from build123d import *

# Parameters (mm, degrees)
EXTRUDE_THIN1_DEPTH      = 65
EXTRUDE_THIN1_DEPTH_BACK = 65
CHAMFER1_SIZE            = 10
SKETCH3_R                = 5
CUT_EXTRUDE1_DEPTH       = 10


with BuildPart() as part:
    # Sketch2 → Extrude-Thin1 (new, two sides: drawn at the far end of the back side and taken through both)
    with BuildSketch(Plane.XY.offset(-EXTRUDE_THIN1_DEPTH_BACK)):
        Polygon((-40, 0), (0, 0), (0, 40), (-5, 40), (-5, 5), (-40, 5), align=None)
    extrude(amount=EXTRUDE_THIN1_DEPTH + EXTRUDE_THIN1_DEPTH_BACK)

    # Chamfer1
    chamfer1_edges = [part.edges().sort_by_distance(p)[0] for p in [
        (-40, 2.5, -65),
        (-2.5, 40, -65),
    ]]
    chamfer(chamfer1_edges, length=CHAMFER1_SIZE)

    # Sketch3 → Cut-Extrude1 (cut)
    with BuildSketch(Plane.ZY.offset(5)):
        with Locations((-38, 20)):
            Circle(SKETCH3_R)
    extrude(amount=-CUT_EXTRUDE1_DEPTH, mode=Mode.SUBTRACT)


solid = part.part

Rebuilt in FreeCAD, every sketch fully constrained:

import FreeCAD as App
import Part
import Sketcher
from FreeCAD import Vector


def edges_at(feature, points):
    """Names of the edges that pass closest to the given points."""
    edges = feature.Shape.Edges
    near = lambda p: min(range(len(edges)), key=lambda i: edges[i].distToShape(Part.Vertex(*p))[0])
    return sorted({f"Edge{near(p) + 1}" for p in points})


def add_polygon(sketch, points):
    """Adds a closed chain of lines whose ends are joined by coincident constraints."""
    first, n = sketch.GeometryCount, len(points)
    for a, b in zip(points, points[1:] + points[:1]):
        sketch.addGeometry(Part.LineSegment(App.Vector(*a, 0), App.Vector(*b, 0)), False)
    for i in range(n):
        sketch.addConstraint(Sketcher.Constraint("Coincident", first + i, 2, first + (i + 1) % n, 1))

doc = App.newDocument("Part")
body = doc.addObject("PartDesign::Body", "Body")

# Sketch on XY plane
sketch1 = body.newObject("Sketcher::SketchObject", "Sketch")
sketch1.AttachmentSupport = (doc.getObject("XY_Plane"), [""])
sketch1.MapMode = "FlatFace"
add_polygon(sketch1, [(-40, 0), (0, 0), (0, 40), (-5, 40), (-5, 5), (-40, 5)])  # lines 0-5
sketch1.addConstraint(Sketcher.Constraint("Horizontal", 0))
sketch1.addConstraint(Sketcher.Constraint("Vertical", 1))
sketch1.addConstraint(Sketcher.Constraint("Horizontal", 2))
sketch1.addConstraint(Sketcher.Constraint("Vertical", 3))
sketch1.addConstraint(Sketcher.Constraint("Horizontal", 4))
sketch1.addConstraint(Sketcher.Constraint("Vertical", 5))
sketch1.addConstraint(Sketcher.Constraint("Coincident", 0, 2, -1, 1))
sketch1.addConstraint(Sketcher.Constraint("Equal", 0, 1))
sketch1.addConstraint(Sketcher.Constraint("Equal", 4, 3))
sketch1.addConstraint(Sketcher.Constraint("DistanceX", 0, 1, 0, 2, 40.0))
sketch1.addConstraint(Sketcher.Constraint("DistanceX", 2, 2, 2, 1, 5.0))
pad1 = body.newObject("PartDesign::Pad", "Pad")
pad1.Profile = sketch1
pad1.Type = "TwoLengths"
pad1.Length = 65
pad1.Length2 = 65
doc.recompute()

chamfer = body.newObject("PartDesign::Chamfer", "Chamfer")
chamfer.Base = (pad1, edges_at(pad1, [(-40, 2.5, -65), (-2.5, 40, -65)]))
chamfer.Size = 10

# Sketch on YZ plane
sketch2 = body.newObject("Sketcher::SketchObject", "Sketch001")
sketch2.AttachmentSupport = (doc.getObject("YZ_Plane"), [""])
sketch2.MapMode = "FlatFace"
sketch2.AttachmentOffset = App.Placement(Vector(0, 0, -5), App.Rotation())
sketch2.addGeometry(Part.Circle(Vector(20, -38, 0), Vector(0, 0, 1), 5), False)
sketch2.addConstraint(Sketcher.Constraint("Diameter", 0, 10.0))
sketch2.addConstraint(Sketcher.Constraint("DistanceX", -1, 1, 0, 3, 20.0))
sketch2.addConstraint(Sketcher.Constraint("DistanceY", 0, 3, -1, 1, 38.0))
pocket1 = body.newObject("PartDesign::Pocket", "Pocket")
pocket1.Profile = sketch2
pocket1.Length = 10
pocket1.Reversed = True

doc.recompute()
